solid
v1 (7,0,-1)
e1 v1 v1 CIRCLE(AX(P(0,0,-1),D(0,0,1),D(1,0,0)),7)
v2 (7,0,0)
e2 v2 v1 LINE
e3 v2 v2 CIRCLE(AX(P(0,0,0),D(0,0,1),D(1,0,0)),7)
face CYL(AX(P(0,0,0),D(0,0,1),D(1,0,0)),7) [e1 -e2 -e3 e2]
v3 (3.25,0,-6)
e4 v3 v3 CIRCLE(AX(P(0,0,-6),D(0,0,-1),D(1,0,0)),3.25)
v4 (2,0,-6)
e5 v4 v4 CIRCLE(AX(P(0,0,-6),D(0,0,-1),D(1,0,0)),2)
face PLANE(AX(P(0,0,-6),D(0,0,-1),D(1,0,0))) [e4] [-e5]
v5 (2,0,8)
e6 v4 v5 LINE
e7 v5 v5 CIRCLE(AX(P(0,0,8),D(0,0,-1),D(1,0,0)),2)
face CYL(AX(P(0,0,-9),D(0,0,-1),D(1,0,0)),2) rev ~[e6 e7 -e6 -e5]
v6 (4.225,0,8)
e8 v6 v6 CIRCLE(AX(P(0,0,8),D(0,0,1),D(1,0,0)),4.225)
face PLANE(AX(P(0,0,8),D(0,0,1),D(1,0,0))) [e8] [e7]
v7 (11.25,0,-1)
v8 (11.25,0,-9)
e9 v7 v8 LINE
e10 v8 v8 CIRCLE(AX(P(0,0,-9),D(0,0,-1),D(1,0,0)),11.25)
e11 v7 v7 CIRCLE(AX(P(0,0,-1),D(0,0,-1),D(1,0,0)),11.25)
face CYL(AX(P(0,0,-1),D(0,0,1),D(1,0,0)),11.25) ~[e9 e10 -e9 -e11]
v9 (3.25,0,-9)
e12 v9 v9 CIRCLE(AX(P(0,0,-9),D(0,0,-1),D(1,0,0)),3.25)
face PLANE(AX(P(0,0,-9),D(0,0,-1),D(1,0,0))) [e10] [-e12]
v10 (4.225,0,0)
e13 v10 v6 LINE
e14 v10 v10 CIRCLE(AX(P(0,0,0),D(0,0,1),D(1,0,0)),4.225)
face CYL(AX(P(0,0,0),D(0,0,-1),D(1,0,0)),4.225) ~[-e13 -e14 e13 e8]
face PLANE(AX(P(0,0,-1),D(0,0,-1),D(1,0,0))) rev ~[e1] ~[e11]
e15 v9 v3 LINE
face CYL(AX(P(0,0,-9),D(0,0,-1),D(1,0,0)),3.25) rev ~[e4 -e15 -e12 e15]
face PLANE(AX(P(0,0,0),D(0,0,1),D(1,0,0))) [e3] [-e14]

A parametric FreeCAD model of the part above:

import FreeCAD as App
import Part
import Sketcher
Q = App.Units.Quantity

doc = App.newDocument("Part")
body = doc.addObject("PartDesign::Body", "Body")

# Sketch on XY plane
sketch1 = body.newObject("Sketcher::SketchObject", "Sketch")
sketch1.AttachmentSupport = (doc.getObject("XY_Plane"), [""])
sketch1.MapMode = "FlatFace"
sketch1.addGeometry(Part.Circle(App.Vector(0, 0, 0), App.Vector(0, 0, 1), 4.225), False)
sketch1.addConstraint(Sketcher.Constraint("Coincident", 0, 3, -1, 1))
sketch1.addConstraint(Sketcher.Constraint("Diameter", 0, Q("8.45 mm")))
pad1 = body.newObject("PartDesign::Pad", "Pad")
pad1.Profile = sketch1
pad1.Length = 8

# Sketch on XY plane
sketch2 = body.newObject("Sketcher::SketchObject", "Sketch001")
sketch2.AttachmentSupport = (doc.getObject("XY_Plane"), [""])
sketch2.MapMode = "FlatFace"
sketch2.addGeometry(Part.Circle(App.Vector(0, 0, 0), App.Vector(0, 0, 1), 7), False)
sketch2.addConstraint(Sketcher.Constraint("Coincident", 0, 3, -1, 1))
sketch2.addConstraint(Sketcher.Constraint("Diameter", 0, Q("14 mm")))
pad2 = body.newObject("PartDesign::Pad", "Pad001")
pad2.Profile = sketch2
pad2.Length = 1
pad2.Reversed = True

# Sketch on XY plane
sketch3 = body.newObject("Sketcher::SketchObject", "Sketch002")
sketch3.AttachmentSupport = (doc.getObject("XY_Plane"), [""])
sketch3.MapMode = "FlatFace"
sketch3.AttachmentOffset = App.Placement(App.Vector(0, 0, -1), App.Rotation())
sketch3.addGeometry(Part.Circle(App.Vector(0, 0, 0), App.Vector(0, 0, 1), 11.25), False)
sketch3.addConstraint(Sketcher.Constraint("Coincident", 0, 3, -1, 1))
sketch3.addConstraint(Sketcher.Constraint("Diameter", 0, Q("22.5 mm")))
pad3 = body.newObject("PartDesign::Pad", "Pad002")
pad3.Profile = sketch3
pad3.Length = 8
pad3.Reversed = True

# Sketch on XY plane
sketch4 = body.newObject("Sketcher::SketchObject", "Sketch003")
sketch4.AttachmentSupport = (doc.getObject("XY_Plane"), [""])
sketch4.MapMode = "FlatFace"
sketch4.AttachmentOffset = App.Placement(App.Vector(0, 0, -9), App.Rotation())
sketch4.addGeometry(Part.Circle(App.Vector(0, 0, 0), App.Vector(0, 0, 1), 2), False)
sketch4.addConstraint(Sketcher.Constraint("Coincident", 0, 3, -1, 1))
sketch4.addConstraint(Sketcher.Constraint("Diameter", 0, Q("4 mm")))
pocket1 = body.newObject("PartDesign::Pocket", "Pocket")
pocket1.Profile = sketch4
pocket1.Type = "ThroughAll"
pocket1.Reversed = True

# Sketch on XY plane
sketch5 = body.newObject("Sketcher::SketchObject", "Sketch004")
sketch5.AttachmentSupport = (doc.getObject("XY_Plane"), [""])
sketch5.MapMode = "FlatFace"
sketch5.AttachmentOffset = App.Placement(App.Vector(0, 0, -9), App.Rotation())
sketch5.addGeometry(Part.Circle(App.Vector(0, 0, 0), App.Vector(0, 0, 1), 3.25), False)
sketch5.addConstraint(Sketcher.Constraint("Coincident", 0, 3, -1, 1))
sketch5.addConstraint(Sketcher.Constraint("Diameter", 0, Q("6.5 mm")))
pocket2 = body.newObject("PartDesign::Pocket", "Pocket001")
pocket2.Profile = sketch5
pocket2.Length = 3
pocket2.Reversed = True

doc.recompute()
